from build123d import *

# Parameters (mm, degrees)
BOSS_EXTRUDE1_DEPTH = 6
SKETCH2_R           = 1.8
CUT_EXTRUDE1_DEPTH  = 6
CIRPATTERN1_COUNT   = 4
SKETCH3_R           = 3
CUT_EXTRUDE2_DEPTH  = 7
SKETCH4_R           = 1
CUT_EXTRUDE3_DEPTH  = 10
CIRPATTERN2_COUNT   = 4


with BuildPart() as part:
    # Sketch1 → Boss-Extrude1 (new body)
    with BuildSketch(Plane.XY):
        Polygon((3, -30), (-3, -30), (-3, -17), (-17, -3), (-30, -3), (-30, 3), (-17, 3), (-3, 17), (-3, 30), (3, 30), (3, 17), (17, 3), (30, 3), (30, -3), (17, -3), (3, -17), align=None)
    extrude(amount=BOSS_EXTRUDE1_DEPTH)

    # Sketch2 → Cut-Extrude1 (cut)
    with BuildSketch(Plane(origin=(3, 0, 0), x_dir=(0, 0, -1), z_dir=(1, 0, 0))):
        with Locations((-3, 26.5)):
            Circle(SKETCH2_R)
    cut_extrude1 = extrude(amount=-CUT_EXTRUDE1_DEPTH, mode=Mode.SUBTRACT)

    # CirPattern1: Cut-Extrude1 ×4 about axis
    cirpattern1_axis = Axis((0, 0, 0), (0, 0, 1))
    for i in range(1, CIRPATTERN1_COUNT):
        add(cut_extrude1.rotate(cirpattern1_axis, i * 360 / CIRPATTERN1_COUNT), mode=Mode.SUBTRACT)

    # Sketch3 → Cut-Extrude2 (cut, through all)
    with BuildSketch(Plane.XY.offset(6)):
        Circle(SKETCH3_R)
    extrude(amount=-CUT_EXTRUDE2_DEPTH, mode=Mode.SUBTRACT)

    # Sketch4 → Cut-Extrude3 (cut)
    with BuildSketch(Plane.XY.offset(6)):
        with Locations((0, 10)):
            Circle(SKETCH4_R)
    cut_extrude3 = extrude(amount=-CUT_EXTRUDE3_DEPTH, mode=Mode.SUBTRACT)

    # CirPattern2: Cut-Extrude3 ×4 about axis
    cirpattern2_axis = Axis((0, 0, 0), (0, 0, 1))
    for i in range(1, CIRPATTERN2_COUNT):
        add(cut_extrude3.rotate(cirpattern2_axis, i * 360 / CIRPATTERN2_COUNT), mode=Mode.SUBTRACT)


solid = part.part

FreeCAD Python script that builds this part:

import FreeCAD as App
import Part
import Sketcher

V = App.Vector

doc = App.newDocument("Part")
body = doc.addObject("PartDesign::Body", "Body")

# Sketch on XY plane
sketch1 = body.newObject("Sketcher::SketchObject", "Sketch")
sketch1.AttachmentSupport = (doc.getObject("XY_Plane"), [""])
sketch1.MapMode = "FlatFace"
sketch1.addGeometry([
    Part.LineSegment(V(-3, -30, 0), V(3, -30, 0)),  # 0
    Part.LineSegment(V(3, -30, 0), V(3, -17, 0)),  # 1
    Part.LineSegment(V(3, -17, 0), V(17, -3, 0)),  # 2
    Part.LineSegment(V(17, -3, 0), V(30, -3, 0)),  # 3
    Part.LineSegment(V(30, -3, 0), V(30, 3, 0)),  # 4
    Part.LineSegment(V(30, 3, 0), V(17, 3, 0)),  # 5
    Part.LineSegment(V(17, 3, 0), V(3, 17, 0)),  # 6
    Part.LineSegment(V(3, 17, 0), V(3, 30, 0)),  # 7
    Part.LineSegment(V(3, 30, 0), V(-3, 30, 0)),  # 8
    Part.LineSegment(V(-3, 30, 0), V(-3, 17, 0)),  # 9
    Part.LineSegment(V(-3, 17, 0), V(-17, 3, 0)),  # 10
    Part.LineSegment(V(-17, 3, 0), V(-30, 3, 0)),  # 11
    Part.LineSegment(V(-30, 3, 0), V(-30, -3, 0)),  # 12
    Part.LineSegment(V(-30, -3, 0), V(-17, -3, 0)),  # 13
    Part.LineSegment(V(-17, -3, 0), V(-3, -17, 0)),  # 14
    Part.LineSegment(V(-3, -17, 0), V(-3, -30, 0)),  # 15
], False)
sketch1.addConstraint([
    Sketcher.Constraint("Coincident", 0, 2, 1, 1),
    Sketcher.Constraint("Coincident", 1, 2, 2, 1),
    Sketcher.Constraint("Coincident", 2, 2, 3, 1),
    Sketcher.Constraint("Coincident", 3, 2, 4, 1),
    Sketcher.Constraint("Coincident", 4, 2, 5, 1),
    Sketcher.Constraint("Coincident", 5, 2, 6, 1),
    Sketcher.Constraint("Coincident", 6, 2, 7, 1),
    Sketcher.Constraint("Coincident", 7, 2, 8, 1),
    Sketcher.Constraint("Coincident", 8, 2, 9, 1),
    Sketcher.Constraint("Coincident", 9, 2, 10, 1),
    Sketcher.Constraint("Coincident", 10, 2, 11, 1),
    Sketcher.Constraint("Coincident", 11, 2, 12, 1),
    Sketcher.Constraint("Coincident", 12, 2, 13, 1),
    Sketcher.Constraint("Coincident", 13, 2, 14, 1),
    Sketcher.Constraint("Coincident", 14, 2, 15, 1),
    Sketcher.Constraint("Coincident", 15, 2, 0, 1),
    Sketcher.Constraint("Horizontal", 0),
    Sketcher.Constraint("Vertical", 1),
    Sketcher.Constraint("Horizontal", 3),
    Sketcher.Constraint("Vertical", 4),
    Sketcher.Constraint("Horizontal", 5),
    Sketcher.Constraint("Vertical", 7),
    Sketcher.Constraint("Horizontal", 8),
    Sketcher.Constraint("Vertical", 9),
    Sketcher.Constraint("Horizontal", 11),
    Sketcher.Constraint("Vertical", 12),
    Sketcher.Constraint("Horizontal", 13),
    Sketcher.Constraint("Vertical", 15),
    Sketcher.Constraint("Symmetric", 0, 2, 8, 2, -1, 1),
    Sketcher.Constraint("Symmetric", 2, 2, 10, 2, -1, 1),
    Sketcher.Constraint("Symmetric", 4, 2, 12, 2, -1, 1),
    Sketcher.Constraint("Symmetric", 6, 2, 14, 2, -1, 1),
    Sketcher.Constraint("Symmetric", 6, 2, 9, 2, -2),
    Sketcher.Constraint("Symmetric", 5, 2, 10, 2, -2),
    Sketcher.Constraint("Perpendicular", 2, 6),
    Sketcher.Constraint("Perpendicular", 6, 10),
    Sketcher.Constraint("Perpendicular", 10, 14),
    Sketcher.Constraint("Equal", 13, 1),
    Sketcher.Constraint("Equal", 8, 4),
    Sketcher.Constraint("DistanceX", 0, 1, 0, 2, 6.0),
    Sketcher.Constraint("DistanceX", 3, 1, 3, 2, 13.0),
    Sketcher.Constraint("DistanceY", 0, 2, -1, 1, 30.0),
])
pad1 = body.newObject("PartDesign::Pad", "Pad")
pad1.Profile = sketch1
pad1.Length = 6

# Sketch on YZ plane
sketch2 = body.newObject("Sketcher::SketchObject", "Sketch001")
sketch2.AttachmentSupport = (doc.getObject("YZ_Plane"), [""])
sketch2.MapMode = "FlatFace"
sketch2.AttachmentOffset = App.Placement(V(0, 0, 3), App.Rotation())
sketch2.addGeometry(Part.Circle(V(26.5, 3, 0), V(0, 0, 1), 1.8), False)
sketch2.addConstraint([
    Sketcher.Constraint("Diameter", 0, 3.6),
    Sketcher.Constraint("DistanceY", -1, 1, 0, 3, 3.0),
    Sketcher.Constraint("DistanceX", -1, 1, 0, 3, 26.5),
])
pocket1 = body.newObject("PartDesign::Pocket", "Pocket")
pocket1.Profile = sketch2
pocket1.Length = 6
doc.recompute()

polarpattern = body.newObject("PartDesign::PolarPattern", "PolarPattern")
polarpattern.Originals = [pocket1]
polarpattern.Axis = (doc.getObject("Z_Axis"), [""])
polarpattern.Angle = 360
polarpattern.Occurrences = 4
body.Tip = polarpattern

# Sketch on XY plane
sketch3 = body.newObject("Sketcher::SketchObject", "Sketch002")
sketch3.AttachmentSupport = (doc.getObject("XY_Plane"), [""])
sketch3.MapMode = "FlatFace"
sketch3.AttachmentOffset = App.Placement(V(0, 0, 6), App.Rotation())
sketch3.addGeometry(Part.Circle(V(0, 0, 0), V(0, 0, 1), 3), False)
sketch3.addConstraint([
    Sketcher.Constraint("Coincident", 0, 3, -1, 1),
    Sketcher.Constraint("Diameter", 0, 6.0),
])
pocket2 = body.newObject("PartDesign::Pocket", "Pocket001")
pocket2.Profile = sketch3
pocket2.Type = "ThroughAll"

# Sketch on XY plane
sketch4 = body.newObject("Sketcher::SketchObject", "Sketch003")
sketch4.AttachmentSupport = (doc.getObject("XY_Plane"), [""])
sketch4.MapMode = "FlatFace"
sketch4.AttachmentOffset = App.Placement(V(0, 0, 6), App.Rotation())
sketch4.addGeometry(Part.Circle(V(0, 10, 0), V(0, 0, 1), 1), False)
sketch4.addConstraint([
    Sketcher.Constraint("PointOnObject", 0, 3, -2),
    Sketcher.Constraint("Diameter", 0, 2.0),
    Sketcher.Constraint("DistanceY", -1, 1, 0, 3, 10.0),
])
pocket3 = body.newObject("PartDesign::Pocket", "Pocket002")
pocket3.Profile = sketch4
pocket3.Length = 10
doc.recompute()

polarpattern2 = body.newObject("PartDesign::PolarPattern", "PolarPattern001")
polarpattern2.Originals = [pocket3]
polarpattern2.Axis = (doc.getObject("Z_Axis"), [""])
polarpattern2.Angle = 360
polarpattern2.Occurrences = 4
body.Tip = polarpattern2

doc.recompute()
